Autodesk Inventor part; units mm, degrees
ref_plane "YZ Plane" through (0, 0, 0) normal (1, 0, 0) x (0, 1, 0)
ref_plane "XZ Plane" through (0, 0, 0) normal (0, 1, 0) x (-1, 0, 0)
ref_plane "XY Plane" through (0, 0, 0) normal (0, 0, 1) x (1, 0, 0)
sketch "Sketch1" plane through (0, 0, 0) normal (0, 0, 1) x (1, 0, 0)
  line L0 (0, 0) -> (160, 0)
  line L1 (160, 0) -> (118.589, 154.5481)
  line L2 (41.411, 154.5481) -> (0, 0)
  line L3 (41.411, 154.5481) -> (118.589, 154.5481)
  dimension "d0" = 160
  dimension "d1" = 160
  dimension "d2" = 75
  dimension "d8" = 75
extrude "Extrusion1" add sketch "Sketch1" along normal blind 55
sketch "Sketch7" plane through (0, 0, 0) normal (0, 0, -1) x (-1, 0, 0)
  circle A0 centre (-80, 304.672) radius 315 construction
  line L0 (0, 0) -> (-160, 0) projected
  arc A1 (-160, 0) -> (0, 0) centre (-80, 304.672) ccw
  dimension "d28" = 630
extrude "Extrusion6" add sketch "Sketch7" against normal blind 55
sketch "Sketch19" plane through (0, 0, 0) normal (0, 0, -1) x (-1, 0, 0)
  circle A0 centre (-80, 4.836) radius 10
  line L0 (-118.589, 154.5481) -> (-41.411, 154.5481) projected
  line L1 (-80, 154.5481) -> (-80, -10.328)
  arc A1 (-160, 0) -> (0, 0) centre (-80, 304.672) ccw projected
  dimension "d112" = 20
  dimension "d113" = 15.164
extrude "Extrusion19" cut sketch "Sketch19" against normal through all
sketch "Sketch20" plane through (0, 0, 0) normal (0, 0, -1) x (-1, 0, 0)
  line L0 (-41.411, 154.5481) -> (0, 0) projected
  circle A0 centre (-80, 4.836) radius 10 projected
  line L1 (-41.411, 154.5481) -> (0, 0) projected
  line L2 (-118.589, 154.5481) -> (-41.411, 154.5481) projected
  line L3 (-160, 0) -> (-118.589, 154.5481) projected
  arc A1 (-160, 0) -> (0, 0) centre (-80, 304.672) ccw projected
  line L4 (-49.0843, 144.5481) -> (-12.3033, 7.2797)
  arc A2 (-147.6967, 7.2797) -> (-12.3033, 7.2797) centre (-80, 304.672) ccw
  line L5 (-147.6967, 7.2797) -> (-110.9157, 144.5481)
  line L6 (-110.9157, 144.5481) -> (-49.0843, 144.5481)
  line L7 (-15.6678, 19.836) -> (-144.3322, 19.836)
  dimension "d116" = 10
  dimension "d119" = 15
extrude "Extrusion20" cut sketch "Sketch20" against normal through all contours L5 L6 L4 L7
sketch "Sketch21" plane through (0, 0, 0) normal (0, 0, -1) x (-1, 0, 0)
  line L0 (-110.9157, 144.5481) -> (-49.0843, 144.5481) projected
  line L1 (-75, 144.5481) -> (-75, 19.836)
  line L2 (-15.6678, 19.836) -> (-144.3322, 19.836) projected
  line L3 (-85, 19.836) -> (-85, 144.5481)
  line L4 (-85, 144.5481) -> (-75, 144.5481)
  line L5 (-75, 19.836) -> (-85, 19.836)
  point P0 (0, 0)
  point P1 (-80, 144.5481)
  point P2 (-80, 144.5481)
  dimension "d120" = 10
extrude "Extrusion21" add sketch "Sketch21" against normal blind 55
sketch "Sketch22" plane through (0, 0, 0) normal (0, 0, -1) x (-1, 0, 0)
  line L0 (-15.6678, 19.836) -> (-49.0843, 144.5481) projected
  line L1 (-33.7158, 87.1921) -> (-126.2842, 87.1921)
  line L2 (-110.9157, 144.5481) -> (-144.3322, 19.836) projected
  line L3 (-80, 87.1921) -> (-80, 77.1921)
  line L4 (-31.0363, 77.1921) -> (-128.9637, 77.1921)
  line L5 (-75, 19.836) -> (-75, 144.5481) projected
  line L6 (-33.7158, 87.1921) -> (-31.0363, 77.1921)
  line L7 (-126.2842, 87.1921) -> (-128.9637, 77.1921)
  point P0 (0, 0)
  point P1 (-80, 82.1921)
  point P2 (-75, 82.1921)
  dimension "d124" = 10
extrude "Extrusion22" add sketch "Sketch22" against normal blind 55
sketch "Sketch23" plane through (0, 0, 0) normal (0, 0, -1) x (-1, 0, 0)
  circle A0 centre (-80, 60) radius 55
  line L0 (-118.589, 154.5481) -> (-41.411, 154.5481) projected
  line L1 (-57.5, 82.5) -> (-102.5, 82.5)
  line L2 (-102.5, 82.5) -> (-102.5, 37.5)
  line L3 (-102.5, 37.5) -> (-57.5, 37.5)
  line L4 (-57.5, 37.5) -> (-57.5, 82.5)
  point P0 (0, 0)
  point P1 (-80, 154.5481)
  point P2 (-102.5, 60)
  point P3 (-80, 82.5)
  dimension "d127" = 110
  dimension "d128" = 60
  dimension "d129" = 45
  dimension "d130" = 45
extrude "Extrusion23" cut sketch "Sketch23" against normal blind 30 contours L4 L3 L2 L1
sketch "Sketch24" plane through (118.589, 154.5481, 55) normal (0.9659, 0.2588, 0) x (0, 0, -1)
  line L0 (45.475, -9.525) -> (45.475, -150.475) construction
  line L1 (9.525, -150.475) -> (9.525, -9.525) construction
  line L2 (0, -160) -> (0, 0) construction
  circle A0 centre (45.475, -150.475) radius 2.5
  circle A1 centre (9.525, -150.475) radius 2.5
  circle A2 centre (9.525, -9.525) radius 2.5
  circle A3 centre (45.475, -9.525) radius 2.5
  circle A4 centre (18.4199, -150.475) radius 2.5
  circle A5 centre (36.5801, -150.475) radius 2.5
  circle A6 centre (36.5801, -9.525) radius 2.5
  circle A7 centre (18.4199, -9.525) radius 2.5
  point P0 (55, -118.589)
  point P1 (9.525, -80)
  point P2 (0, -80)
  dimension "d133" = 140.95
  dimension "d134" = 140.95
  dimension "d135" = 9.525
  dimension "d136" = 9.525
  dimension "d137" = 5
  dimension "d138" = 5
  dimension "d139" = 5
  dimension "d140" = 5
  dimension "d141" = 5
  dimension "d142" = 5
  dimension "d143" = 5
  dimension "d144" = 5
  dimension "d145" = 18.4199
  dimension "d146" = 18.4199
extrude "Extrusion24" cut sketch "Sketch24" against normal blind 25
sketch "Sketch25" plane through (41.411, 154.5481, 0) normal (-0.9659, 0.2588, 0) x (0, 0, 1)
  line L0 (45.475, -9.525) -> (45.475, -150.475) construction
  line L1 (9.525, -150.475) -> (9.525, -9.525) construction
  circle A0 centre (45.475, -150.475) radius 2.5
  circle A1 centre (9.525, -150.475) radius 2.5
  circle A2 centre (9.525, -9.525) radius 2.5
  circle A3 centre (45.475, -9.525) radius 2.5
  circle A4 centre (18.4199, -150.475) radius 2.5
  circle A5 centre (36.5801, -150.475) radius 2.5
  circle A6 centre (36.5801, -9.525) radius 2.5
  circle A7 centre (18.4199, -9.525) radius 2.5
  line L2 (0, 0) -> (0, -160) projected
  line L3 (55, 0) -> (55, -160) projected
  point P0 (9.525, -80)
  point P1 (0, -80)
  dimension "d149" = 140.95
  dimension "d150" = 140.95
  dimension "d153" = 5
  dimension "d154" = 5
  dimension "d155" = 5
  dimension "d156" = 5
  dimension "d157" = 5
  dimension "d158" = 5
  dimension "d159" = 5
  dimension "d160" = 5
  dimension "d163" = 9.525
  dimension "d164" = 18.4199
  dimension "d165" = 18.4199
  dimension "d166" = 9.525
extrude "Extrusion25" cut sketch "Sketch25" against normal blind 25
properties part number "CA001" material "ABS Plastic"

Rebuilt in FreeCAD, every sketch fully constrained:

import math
import FreeCAD as App
import Part
import Sketcher
from FreeCAD import Vector
Q = App.Units.Quantity


def add_polygon(sketch, points):
    """Adds a closed chain of lines whose ends are joined by coincident constraints."""
    first, n = sketch.GeometryCount, len(points)
    for a, b in zip(points, points[1:] + points[:1]):
        sketch.addGeometry(Part.LineSegment(App.Vector(*a, 0), App.Vector(*b, 0)), False)
    for i in range(n):
        sketch.addConstraint(Sketcher.Constraint("Coincident", first + i, 2, first + (i + 1) % n, 1))

doc = App.newDocument("Part")
body = doc.addObject("PartDesign::Body", "Body")

sketch1 = body.newObject("Sketcher::SketchObject", "Sketch")
sketch1.AttachmentSupport = (doc.getObject("XY_Plane"), [""])
sketch1.MapMode = "FlatFace"
add_polygon(sketch1, [(41.411, 154.5481), (0, 0), (160, 0), (118.589, 154.5481)])
sketch1.addConstraint(Sketcher.Constraint("Horizontal", 1))
sketch1.addConstraint(Sketcher.Constraint("Horizontal", 3))
sketch1.addConstraint(Sketcher.Constraint("Coincident", 0, 2, -1, 1))
sketch1.addConstraint(Sketcher.Constraint("Equal", 0, 2))
sketch1.addConstraint(Sketcher.Constraint("DistanceX", 1, 1, 1, 2, Q("160 mm")))
sketch1.addConstraint(Sketcher.Constraint("Distance", 0, Q("160 mm")))
sketch1.addConstraint(Sketcher.Constraint("Angle", 0, Q("-105 deg")))
pad1 = body.newObject("PartDesign::Pad", "Pad")
pad1.Profile = sketch1
pad1.Length = 55

sketch2 = body.newObject("Sketcher::SketchObject", "Sketch001")
sketch2.AttachmentSupport = (doc.getObject("XY_Plane"), [""])
sketch2.MapMode = "FlatFace"
sketch2.addGeometry(Part.ArcOfCircle(Part.Circle(Vector(80, 304.672, 0), Vector(0, 0, 1), 315.000044), math.radians(-104.712456), math.radians(-75.287544)), False)
sketch2.addGeometry(Part.LineSegment(Vector(0, 0, 0), Vector(160, 0, 0)), False)
sketch2.addConstraint(Sketcher.Constraint("Coincident", 0, 1, 1, 1))
sketch2.addConstraint(Sketcher.Constraint("Coincident", 1, 2, 0, 2))
sketch2.addConstraint(Sketcher.Constraint("Horizontal", 1))
sketch2.addConstraint(Sketcher.Constraint("Coincident", 0, 1, -1, 1))
sketch2.addConstraint(Sketcher.Constraint("Radius", 0, Q("315 mm")))
sketch2.addConstraint(Sketcher.Constraint("DistanceX", 1, 1, 1, 2, Q("160 mm")))
pad2 = body.newObject("PartDesign::Pad", "Pad001")
pad2.Profile = sketch2
pad2.Length = 55

sketch3 = body.newObject("Sketcher::SketchObject", "Sketch002")
sketch3.AttachmentSupport = (doc.getObject("XY_Plane"), [""])
sketch3.MapMode = "FlatFace"
sketch3.addGeometry(Part.Circle(Vector(80, 4.836, 0), Vector(0, 0, 1), 10), False)
sketch3.addConstraint(Sketcher.Constraint("Diameter", 0, Q("20 mm")))
sketch3.addConstraint(Sketcher.Constraint("DistanceX", -1, 1, 0, 3, Q("80 mm")))
sketch3.addConstraint(Sketcher.Constraint("DistanceY", -1, 1, 0, 3, Q("4.836 mm")))
pocket1 = body.newObject("PartDesign::Pocket", "Pocket")
pocket1.Profile = sketch3
pocket1.Type = "ThroughAll"
pocket1.Reversed = True

sketch4 = body.newObject("Sketcher::SketchObject", "Sketch003")
sketch4.AttachmentSupport = (doc.getObject("XY_Plane"), [""])
sketch4.MapMode = "FlatFace"
add_polygon(sketch4, [(110.9157, 144.5481), (144.3322, 19.836), (15.667757, 19.836011), (49.0843, 144.5481)])
sketch4.addConstraint(Sketcher.Constraint("Horizontal", 1))
sketch4.addConstraint(Sketcher.Constraint("Horizontal", 3))
sketch4.addConstraint(Sketcher.Constraint("Equal", 0, 2))
sketch4.addConstraint(Sketcher.Constraint("Angle", 0, Q("-75 deg")))
sketch4.addConstraint(Sketcher.Constraint("DistanceX", 1, 2, 1, 1, Q("128.6644 mm")))
sketch4.addConstraint(Sketcher.Constraint("DistanceX", 3, 1, 3, 2, Q("61.8314 mm")))
sketch4.addConstraint(Sketcher.Constraint("DistanceY", -1, 1, 0, 2, Q("19.836 mm")))
sketch4.addConstraint(Sketcher.Constraint("DistanceX", -1, 1, 0, 2, Q("144.3322 mm")))
pocket2 = body.newObject("PartDesign::Pocket", "Pocket001")
pocket2.Profile = sketch4
pocket2.Type = "ThroughAll"
pocket2.Reversed = True

sketch5 = body.newObject("Sketcher::SketchObject", "Sketch004")
sketch5.AttachmentSupport = (doc.getObject("XY_Plane"), [""])
sketch5.MapMode = "FlatFace"
add_polygon(sketch5, [(75, 144.5481), (85, 144.5481), (85, 19.836), (75, 19.836)])
sketch5.addConstraint(Sketcher.Constraint("Horizontal", 0))
sketch5.addConstraint(Sketcher.Constraint("Vertical", 1))
sketch5.addConstraint(Sketcher.Constraint("Horizontal", 2))
sketch5.addConstraint(Sketcher.Constraint("Vertical", 3))
sketch5.addConstraint(Sketcher.Constraint("DistanceX", 0, 1, 0, 2, Q("10 mm")))
sketch5.addConstraint(Sketcher.Constraint("DistanceX", -1, 1, 0, 2, Q("85 mm")))
sketch5.addConstraint(Sketcher.Constraint("DistanceY", 1, 2, 1, 1, Q("124.712 mm")))
sketch5.addConstraint(Sketcher.Constraint("DistanceY", -1, 1, 0, 2, Q("144.548 mm")))
pad3 = body.newObject("PartDesign::Pad", "Pad002")
pad3.Profile = sketch5
pad3.Length = 55

sketch6 = body.newObject("Sketcher::SketchObject", "Sketch005")
sketch6.AttachmentSupport = (doc.getObject("XY_Plane"), [""])
sketch6.MapMode = "FlatFace"
add_polygon(sketch6, [(31.036317, 77.192096), (33.7158, 87.1921), (126.284192, 87.192098), (128.9637, 77.1921)])
sketch6.addConstraint(Sketcher.Constraint("Horizontal", 1))
sketch6.addConstraint(Sketcher.Constraint("Horizontal", 3))
sketch6.addConstraint(Sketcher.Constraint("Equal", 0, 2))
sketch6.addConstraint(Sketcher.Constraint("DistanceY", 2, 2, 1, 2, Q("10 mm")))
sketch6.addConstraint(Sketcher.Constraint("Angle", 0, Q("75 deg")))
sketch6.addConstraint(Sketcher.Constraint("DistanceX", 1, 1, 1, 2, Q("92.5684 mm")))
sketch6.addConstraint(Sketcher.Constraint("DistanceY", -1, 1, 0, 2, Q("87.192 mm")))
sketch6.addConstraint(Sketcher.Constraint("DistanceX", -1, 1, 0, 2, Q("33.7158 mm")))
pad4 = body.newObject("PartDesign::Pad", "Pad003")
pad4.Profile = sketch6
pad4.Length = 55

sketch7 = body.newObject("Sketcher::SketchObject", "Sketch006")
sketch7.AttachmentSupport = (doc.getObject("XY_Plane"), [""])
sketch7.MapMode = "FlatFace"
add_polygon(sketch7, [(57.5, 37.5), (57.5, 82.5), (102.5, 82.5), (102.5, 37.5)])
sketch7.addConstraint(Sketcher.Constraint("Vertical", 0))
sketch7.addConstraint(Sketcher.Constraint("Horizontal", 1))
sketch7.addConstraint(Sketcher.Constraint("Vertical", 2))
sketch7.addConstraint(Sketcher.Constraint("Horizontal", 3))
sketch7.addConstraint(Sketcher.Constraint("Equal", 3, 0))
sketch7.addConstraint(Sketcher.Constraint("DistanceX", 1, 1, 1, 2, Q("45 mm")))
sketch7.addConstraint(Sketcher.Constraint("DistanceX", -1, 1, 0, 2, Q("57.5 mm")))
sketch7.addConstraint(Sketcher.Constraint("DistanceY", -1, 1, 0, 2, Q("82.5 mm")))
pocket3 = body.newObject("PartDesign::Pocket", "Pocket002")
pocket3.Profile = sketch7
pocket3.Length = 30
pocket3.Reversed = True

sketch8 = body.newObject("Sketcher::SketchObject", "Sketch007")
sketch8.Placement = App.Placement(Vector(118.589, 154.5481, 55), App.Rotation(Vector(0, 0, -1), Vector(-0.258819045, 0.965925826, 0), Vector(0.965925826, 0.258819045, 0), "ZXY"))
sketch8.addGeometry(Part.Circle(Vector(45.475, -150.475, 0), Vector(0, 0, 1), 2.5), False)
sketch8.addGeometry(Part.Circle(Vector(9.525, -150.475, 0), Vector(0, 0, 1), 2.5), False)
sketch8.addGeometry(Part.Circle(Vector(9.525, -9.525, 0), Vector(0, 0, 1), 2.5), False)
sketch8.addGeometry(Part.Circle(Vector(45.475, -9.525, 0), Vector(0, 0, 1), 2.5), False)
sketch8.addGeometry(Part.Circle(Vector(18.4199, -150.475, 0), Vector(0, 0, 1), 2.5), False)
sketch8.addGeometry(Part.Circle(Vector(36.5801, -150.475, 0), Vector(0, 0, 1), 2.5), False)
sketch8.addGeometry(Part.Circle(Vector(36.5801, -9.525, 0), Vector(0, 0, 1), 2.5), False)
sketch8.addGeometry(Part.Circle(Vector(18.4199, -9.525, 0), Vector(0, 0, 1), 2.5), False)
sketch8.addConstraint(Sketcher.Constraint("Equal", 0, 1))
sketch8.addConstraint(Sketcher.Constraint("Equal", 1, 2))
sketch8.addConstraint(Sketcher.Constraint("Equal", 2, 3))
sketch8.addConstraint(Sketcher.Constraint("Equal", 3, 4))
sketch8.addConstraint(Sketcher.Constraint("Equal", 4, 5))
sketch8.addConstraint(Sketcher.Constraint("Equal", 5, 6))
sketch8.addConstraint(Sketcher.Constraint("Equal", 6, 7))
sketch8.addConstraint(Sketcher.Constraint("Horizontal", 0, 3, 1, 3))
sketch8.addConstraint(Sketcher.Constraint("Horizontal", 2, 3, 3, 3))
sketch8.addConstraint(Sketcher.Constraint("Horizontal", 1, 3, 4, 3))
sketch8.addConstraint(Sketcher.Constraint("Horizontal", 4, 3, 5, 3))
sketch8.addConstraint(Sketcher.Constraint("Horizontal", 3, 3, 6, 3))
sketch8.addConstraint(Sketcher.Constraint("Horizontal", 6, 3, 7, 3))
sketch8.addConstraint(Sketcher.Constraint("Vertical", 1, 3, 2, 3))
sketch8.addConstraint(Sketcher.Constraint("Vertical", 0, 3, 3, 3))
sketch8.addConstraint(Sketcher.Constraint("Vertical", 5, 3, 6, 3))
sketch8.addConstraint(Sketcher.Constraint("Vertical", 4, 3, 7, 3))
sketch8.addConstraint(Sketcher.Constraint("Diameter", 0, Q("5 mm")))
sketch8.addConstraint(Sketcher.Constraint("DistanceX", -1, 1, 4, 3, Q("18.42 mm")))
sketch8.addConstraint(Sketcher.Constraint("DistanceY", 1, 3, 2, 3, Q("140.95 mm")))
sketch8.addConstraint(Sketcher.Constraint("DistanceX", -1, 1, 1, 3, Q("9.525 mm")))
sketch8.addConstraint(Sketcher.Constraint("DistanceY", 2, 3, -1, 1, Q("9.525 mm")))
sketch8.addConstraint(Sketcher.Constraint("DistanceX", -1, 1, 5, 3, Q("36.58 mm")))
sketch8.addConstraint(Sketcher.Constraint("DistanceX", 1, 3, 0, 3, Q("35.95 mm")))
pocket4 = body.newObject("PartDesign::Pocket", "Pocket003")
pocket4.Profile = sketch8
pocket4.Length = 25

sketch9 = body.newObject("Sketcher::SketchObject", "Sketch008")
sketch9.Placement = App.Placement(Vector(41.411, 154.5481, 0), App.Rotation(Vector(0, 0, 1), Vector(0.258819045, 0.965925826, 0), Vector(-0.965925826, 0.258819045, 0), "ZXY"))
sketch9.addGeometry(Part.Circle(Vector(45.475, -150.475, 0), Vector(0, 0, 1), 2.5), False)
sketch9.addGeometry(Part.Circle(Vector(9.525, -150.475, 0), Vector(0, 0, 1), 2.5), False)
sketch9.addGeometry(Part.Circle(Vector(9.525, -9.525, 0), Vector(0, 0, 1), 2.5), False)
sketch9.addGeometry(Part.Circle(Vector(45.475, -9.525, 0), Vector(0, 0, 1), 2.5), False)
sketch9.addGeometry(Part.Circle(Vector(18.4199, -150.475, 0), Vector(0, 0, 1), 2.5), False)
sketch9.addGeometry(Part.Circle(Vector(36.5801, -150.475, 0), Vector(0, 0, 1), 2.5), False)
sketch9.addGeometry(Part.Circle(Vector(36.5801, -9.525, 0), Vector(0, 0, 1), 2.5), False)
sketch9.addGeometry(Part.Circle(Vector(18.4199, -9.525, 0), Vector(0, 0, 1), 2.5), False)
sketch9.addConstraint(Sketcher.Constraint("Equal", 0, 1))
sketch9.addConstraint(Sketcher.Constraint("Equal", 1, 2))
sketch9.addConstraint(Sketcher.Constraint("Equal", 2, 3))
sketch9.addConstraint(Sketcher.Constraint("Equal", 3, 4))
sketch9.addConstraint(Sketcher.Constraint("Equal", 4, 5))
sketch9.addConstraint(Sketcher.Constraint("Equal", 5, 6))
sketch9.addConstraint(Sketcher.Constraint("Equal", 6, 7))
sketch9.addConstraint(Sketcher.Constraint("Horizontal", 0, 3, 1, 3))
sketch9.addConstraint(Sketcher.Constraint("Horizontal", 2, 3, 3, 3))
sketch9.addConstraint(Sketcher.Constraint("Horizontal", 1, 3, 4, 3))
sketch9.addConstraint(Sketcher.Constraint("Horizontal", 4, 3, 5, 3))
sketch9.addConstraint(Sketcher.Constraint("Horizontal", 3, 3, 6, 3))
sketch9.addConstraint(Sketcher.Constraint("Horizontal", 6, 3, 7, 3))
sketch9.addConstraint(Sketcher.Constraint("Vertical", 1, 3, 2, 3))
sketch9.addConstraint(Sketcher.Constraint("Vertical", 0, 3, 3, 3))
sketch9.addConstraint(Sketcher.Constraint("Vertical", 5, 3, 6, 3))
sketch9.addConstraint(Sketcher.Constraint("Vertical", 4, 3, 7, 3))
sketch9.addConstraint(Sketcher.Constraint("Diameter", 0, Q("5 mm")))
sketch9.addConstraint(Sketcher.Constraint("DistanceX", -1, 1, 4, 3, Q("18.42 mm")))
sketch9.addConstraint(Sketcher.Constraint("DistanceY", 1, 3, 2, 3, Q("140.95 mm")))
sketch9.addConstraint(Sketcher.Constraint("DistanceX", -1, 1, 1, 3, Q("9.525 mm")))
sketch9.addConstraint(Sketcher.Constraint("DistanceY", 2, 3, -1, 1, Q("9.525 mm")))
sketch9.addConstraint(Sketcher.Constraint("DistanceX", -1, 1, 5, 3, Q("36.58 mm")))
sketch9.addConstraint(Sketcher.Constraint("DistanceX", 1, 3, 0, 3, Q("35.95 mm")))
pocket5 = body.newObject("PartDesign::Pocket", "Pocket004")
pocket5.Profile = sketch9
pocket5.Length = 25

doc.recompute()
